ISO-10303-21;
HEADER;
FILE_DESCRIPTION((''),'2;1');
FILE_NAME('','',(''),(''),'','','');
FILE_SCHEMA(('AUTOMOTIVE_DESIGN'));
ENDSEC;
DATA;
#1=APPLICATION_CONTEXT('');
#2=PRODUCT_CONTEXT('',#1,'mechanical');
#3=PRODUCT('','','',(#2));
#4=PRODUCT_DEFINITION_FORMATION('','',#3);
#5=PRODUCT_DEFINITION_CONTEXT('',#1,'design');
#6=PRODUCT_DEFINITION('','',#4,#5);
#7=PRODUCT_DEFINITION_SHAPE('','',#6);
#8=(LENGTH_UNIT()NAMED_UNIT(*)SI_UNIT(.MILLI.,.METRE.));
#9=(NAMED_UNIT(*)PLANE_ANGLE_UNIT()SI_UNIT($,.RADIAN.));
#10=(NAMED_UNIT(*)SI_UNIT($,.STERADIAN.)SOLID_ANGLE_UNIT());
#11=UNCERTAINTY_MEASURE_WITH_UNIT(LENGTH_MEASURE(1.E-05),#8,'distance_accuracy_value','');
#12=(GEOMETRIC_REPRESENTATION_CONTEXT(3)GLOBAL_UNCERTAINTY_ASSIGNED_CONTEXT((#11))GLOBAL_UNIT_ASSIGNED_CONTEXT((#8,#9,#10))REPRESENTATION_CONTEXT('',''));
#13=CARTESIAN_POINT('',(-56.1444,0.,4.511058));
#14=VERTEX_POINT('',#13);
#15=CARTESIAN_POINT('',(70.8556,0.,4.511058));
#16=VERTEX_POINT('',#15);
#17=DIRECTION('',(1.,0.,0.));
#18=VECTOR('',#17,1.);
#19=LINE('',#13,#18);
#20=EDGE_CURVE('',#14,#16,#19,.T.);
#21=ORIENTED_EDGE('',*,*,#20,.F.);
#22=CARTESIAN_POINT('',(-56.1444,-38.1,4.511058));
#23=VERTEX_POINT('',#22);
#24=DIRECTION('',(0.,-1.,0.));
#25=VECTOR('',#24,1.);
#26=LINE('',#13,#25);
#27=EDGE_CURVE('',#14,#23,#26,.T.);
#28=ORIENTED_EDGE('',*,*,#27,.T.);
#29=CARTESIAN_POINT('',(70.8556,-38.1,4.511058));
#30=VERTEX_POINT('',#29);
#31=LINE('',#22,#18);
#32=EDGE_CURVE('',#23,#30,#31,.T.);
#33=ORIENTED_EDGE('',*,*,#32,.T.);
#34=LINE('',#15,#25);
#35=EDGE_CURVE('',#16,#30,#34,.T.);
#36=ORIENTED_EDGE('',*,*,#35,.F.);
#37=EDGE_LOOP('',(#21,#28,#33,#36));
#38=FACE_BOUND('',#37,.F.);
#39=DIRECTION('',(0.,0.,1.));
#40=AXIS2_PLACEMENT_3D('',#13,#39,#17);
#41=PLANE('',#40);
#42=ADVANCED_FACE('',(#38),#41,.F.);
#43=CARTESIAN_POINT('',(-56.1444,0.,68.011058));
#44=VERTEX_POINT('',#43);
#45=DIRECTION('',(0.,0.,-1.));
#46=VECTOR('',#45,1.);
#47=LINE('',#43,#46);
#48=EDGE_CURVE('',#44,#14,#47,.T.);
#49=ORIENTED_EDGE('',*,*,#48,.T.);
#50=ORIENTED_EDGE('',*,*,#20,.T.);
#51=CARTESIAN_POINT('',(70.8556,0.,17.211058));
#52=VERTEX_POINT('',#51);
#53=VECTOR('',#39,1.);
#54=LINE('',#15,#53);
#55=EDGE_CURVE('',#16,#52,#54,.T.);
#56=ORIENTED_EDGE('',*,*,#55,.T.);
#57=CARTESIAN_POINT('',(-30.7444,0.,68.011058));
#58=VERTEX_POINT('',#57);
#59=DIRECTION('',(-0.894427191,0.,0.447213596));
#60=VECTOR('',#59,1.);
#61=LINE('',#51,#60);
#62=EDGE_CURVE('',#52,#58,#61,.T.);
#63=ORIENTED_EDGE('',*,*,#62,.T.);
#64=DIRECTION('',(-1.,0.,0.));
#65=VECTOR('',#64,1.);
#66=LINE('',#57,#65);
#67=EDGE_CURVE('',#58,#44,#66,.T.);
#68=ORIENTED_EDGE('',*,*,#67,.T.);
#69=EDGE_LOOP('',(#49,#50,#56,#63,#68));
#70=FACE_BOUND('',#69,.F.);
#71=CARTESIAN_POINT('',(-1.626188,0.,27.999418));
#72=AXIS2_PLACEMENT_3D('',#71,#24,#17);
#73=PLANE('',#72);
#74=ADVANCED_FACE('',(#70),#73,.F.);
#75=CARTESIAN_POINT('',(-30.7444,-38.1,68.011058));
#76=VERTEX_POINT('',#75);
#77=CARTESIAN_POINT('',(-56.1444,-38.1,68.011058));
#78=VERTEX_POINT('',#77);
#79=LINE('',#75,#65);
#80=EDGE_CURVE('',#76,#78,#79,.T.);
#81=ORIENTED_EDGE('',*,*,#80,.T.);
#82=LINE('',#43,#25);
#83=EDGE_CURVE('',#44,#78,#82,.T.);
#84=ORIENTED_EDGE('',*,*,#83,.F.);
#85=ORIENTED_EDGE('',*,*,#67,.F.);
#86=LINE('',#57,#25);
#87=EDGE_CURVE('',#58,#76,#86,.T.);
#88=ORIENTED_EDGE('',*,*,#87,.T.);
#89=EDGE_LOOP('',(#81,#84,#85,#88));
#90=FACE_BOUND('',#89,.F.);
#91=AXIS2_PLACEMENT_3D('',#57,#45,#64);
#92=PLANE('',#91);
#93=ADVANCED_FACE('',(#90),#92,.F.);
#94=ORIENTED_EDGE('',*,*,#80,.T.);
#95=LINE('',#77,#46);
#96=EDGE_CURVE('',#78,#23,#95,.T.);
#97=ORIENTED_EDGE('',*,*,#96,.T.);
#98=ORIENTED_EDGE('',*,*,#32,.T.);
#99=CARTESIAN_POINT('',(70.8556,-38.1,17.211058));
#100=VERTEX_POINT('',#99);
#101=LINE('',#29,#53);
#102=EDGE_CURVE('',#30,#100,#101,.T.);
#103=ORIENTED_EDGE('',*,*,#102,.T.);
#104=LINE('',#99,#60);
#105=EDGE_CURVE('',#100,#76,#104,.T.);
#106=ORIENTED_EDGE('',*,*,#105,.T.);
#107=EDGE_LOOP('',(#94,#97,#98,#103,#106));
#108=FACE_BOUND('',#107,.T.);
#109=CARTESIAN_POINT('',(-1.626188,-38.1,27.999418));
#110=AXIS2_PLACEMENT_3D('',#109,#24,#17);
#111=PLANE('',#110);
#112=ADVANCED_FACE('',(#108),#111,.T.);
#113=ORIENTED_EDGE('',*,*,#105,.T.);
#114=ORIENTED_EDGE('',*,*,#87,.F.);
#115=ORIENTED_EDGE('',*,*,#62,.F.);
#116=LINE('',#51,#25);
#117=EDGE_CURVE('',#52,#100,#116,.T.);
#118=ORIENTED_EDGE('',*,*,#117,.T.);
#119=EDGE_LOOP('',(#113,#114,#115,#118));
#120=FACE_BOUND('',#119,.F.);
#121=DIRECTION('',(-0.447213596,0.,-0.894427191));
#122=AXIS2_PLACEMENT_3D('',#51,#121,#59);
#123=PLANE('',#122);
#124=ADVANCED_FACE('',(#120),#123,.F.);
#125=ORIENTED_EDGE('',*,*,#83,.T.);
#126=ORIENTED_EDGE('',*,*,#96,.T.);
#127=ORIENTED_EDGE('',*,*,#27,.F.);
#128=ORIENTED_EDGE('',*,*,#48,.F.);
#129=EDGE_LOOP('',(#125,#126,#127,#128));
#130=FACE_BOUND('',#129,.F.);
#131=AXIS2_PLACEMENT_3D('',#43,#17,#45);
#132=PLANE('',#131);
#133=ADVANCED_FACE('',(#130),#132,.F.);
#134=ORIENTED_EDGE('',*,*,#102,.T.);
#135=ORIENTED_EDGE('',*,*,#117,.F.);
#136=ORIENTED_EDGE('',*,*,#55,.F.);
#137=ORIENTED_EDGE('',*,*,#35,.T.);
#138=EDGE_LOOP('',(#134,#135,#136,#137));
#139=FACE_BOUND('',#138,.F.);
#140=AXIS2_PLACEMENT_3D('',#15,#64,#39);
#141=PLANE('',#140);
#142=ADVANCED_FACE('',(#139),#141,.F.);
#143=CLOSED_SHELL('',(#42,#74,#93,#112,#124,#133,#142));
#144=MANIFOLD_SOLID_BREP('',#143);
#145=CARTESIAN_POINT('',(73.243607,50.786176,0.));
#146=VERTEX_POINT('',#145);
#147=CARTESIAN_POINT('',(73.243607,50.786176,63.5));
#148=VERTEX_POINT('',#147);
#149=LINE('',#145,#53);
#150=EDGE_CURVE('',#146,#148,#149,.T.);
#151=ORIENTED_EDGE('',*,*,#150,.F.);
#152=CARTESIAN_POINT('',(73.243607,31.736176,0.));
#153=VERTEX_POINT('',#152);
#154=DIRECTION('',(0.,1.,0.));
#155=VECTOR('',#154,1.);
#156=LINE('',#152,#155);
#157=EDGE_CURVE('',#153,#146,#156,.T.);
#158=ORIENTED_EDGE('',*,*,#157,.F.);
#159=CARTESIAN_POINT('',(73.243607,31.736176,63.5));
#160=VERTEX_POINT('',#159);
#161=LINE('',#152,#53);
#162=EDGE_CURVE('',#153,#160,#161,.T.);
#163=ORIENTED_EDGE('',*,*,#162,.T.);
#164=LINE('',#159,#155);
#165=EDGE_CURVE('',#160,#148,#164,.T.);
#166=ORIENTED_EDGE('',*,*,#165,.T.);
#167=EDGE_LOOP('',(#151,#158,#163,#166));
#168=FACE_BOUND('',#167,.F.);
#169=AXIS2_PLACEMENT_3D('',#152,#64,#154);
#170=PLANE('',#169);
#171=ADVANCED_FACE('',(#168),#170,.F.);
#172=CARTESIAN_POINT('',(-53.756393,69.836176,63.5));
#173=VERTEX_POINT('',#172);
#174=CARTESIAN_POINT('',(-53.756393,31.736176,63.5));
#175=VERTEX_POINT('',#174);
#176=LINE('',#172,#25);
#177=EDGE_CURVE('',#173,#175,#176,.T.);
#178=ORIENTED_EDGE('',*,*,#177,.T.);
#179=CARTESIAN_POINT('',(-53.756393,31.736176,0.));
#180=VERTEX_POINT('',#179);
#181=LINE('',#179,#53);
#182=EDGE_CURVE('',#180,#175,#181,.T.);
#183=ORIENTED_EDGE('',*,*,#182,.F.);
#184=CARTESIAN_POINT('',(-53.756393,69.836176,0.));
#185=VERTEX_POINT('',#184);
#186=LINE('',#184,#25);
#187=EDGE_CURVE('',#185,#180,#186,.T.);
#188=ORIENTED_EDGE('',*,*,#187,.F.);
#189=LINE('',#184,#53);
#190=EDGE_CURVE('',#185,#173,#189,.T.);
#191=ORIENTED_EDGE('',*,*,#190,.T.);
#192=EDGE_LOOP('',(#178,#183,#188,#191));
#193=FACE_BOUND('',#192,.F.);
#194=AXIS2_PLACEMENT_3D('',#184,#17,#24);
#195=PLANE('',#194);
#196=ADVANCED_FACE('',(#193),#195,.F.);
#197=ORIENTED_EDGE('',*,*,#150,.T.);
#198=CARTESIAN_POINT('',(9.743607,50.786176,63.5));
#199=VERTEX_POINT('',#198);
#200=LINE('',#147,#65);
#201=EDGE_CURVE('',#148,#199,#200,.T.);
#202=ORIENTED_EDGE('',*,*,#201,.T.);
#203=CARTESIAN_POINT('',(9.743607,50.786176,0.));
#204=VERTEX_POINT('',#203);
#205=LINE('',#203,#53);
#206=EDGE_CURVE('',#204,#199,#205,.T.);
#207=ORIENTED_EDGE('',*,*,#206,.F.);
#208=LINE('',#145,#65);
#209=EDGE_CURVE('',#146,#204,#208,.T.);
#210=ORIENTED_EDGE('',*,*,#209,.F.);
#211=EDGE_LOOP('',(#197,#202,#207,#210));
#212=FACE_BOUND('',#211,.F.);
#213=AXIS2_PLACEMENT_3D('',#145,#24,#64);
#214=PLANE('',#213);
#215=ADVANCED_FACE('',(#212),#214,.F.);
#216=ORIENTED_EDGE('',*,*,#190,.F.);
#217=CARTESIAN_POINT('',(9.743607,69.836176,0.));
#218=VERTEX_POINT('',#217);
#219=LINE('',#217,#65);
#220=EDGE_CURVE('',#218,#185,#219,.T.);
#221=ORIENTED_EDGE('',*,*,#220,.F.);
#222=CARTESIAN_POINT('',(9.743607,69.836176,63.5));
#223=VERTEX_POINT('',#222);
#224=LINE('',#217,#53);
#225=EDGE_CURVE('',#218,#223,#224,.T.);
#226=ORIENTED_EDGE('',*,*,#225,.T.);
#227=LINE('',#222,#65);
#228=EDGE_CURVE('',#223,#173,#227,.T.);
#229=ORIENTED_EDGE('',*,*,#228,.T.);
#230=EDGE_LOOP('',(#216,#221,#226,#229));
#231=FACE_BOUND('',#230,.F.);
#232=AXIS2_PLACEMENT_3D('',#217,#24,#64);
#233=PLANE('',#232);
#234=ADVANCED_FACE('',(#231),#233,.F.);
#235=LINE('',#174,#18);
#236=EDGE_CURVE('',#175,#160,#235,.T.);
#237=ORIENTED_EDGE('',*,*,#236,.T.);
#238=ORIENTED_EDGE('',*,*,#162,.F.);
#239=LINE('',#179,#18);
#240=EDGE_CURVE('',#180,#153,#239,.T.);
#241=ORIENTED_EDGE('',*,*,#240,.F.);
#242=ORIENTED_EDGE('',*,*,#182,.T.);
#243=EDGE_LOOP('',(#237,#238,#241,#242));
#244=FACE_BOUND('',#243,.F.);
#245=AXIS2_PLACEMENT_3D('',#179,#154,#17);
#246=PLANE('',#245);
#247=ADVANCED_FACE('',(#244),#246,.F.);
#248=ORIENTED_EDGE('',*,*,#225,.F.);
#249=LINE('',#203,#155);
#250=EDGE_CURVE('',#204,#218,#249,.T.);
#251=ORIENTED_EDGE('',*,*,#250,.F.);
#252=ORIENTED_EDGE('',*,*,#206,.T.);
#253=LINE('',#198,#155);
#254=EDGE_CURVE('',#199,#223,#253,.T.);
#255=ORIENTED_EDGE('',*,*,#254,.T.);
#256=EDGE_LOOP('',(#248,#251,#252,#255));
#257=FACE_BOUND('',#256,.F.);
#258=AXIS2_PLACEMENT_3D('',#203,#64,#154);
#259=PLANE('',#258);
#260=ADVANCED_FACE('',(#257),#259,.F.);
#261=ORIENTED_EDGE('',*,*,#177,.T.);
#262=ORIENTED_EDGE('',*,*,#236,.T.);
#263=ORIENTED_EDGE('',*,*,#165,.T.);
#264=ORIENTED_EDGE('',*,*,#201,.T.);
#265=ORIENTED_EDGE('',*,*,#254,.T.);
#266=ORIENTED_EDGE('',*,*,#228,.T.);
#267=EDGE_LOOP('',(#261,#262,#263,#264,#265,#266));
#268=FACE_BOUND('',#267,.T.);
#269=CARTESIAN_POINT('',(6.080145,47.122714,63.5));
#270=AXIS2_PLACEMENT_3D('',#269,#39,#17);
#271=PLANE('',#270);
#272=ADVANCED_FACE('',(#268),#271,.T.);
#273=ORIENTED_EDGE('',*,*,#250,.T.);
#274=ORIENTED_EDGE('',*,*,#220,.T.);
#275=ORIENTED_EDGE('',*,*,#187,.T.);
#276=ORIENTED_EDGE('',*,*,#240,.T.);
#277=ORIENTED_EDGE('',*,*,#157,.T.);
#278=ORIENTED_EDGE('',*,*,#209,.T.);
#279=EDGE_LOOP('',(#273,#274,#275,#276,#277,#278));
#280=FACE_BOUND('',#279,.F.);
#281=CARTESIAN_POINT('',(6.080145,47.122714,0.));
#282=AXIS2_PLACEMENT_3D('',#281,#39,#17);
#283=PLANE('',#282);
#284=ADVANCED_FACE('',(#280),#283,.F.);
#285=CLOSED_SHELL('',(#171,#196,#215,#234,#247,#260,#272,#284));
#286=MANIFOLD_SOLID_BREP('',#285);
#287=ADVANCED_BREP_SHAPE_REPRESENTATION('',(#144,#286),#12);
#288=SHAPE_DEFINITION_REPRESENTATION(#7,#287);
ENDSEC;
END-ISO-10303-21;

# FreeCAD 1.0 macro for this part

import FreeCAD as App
import Part
import Sketcher
Q = App.Units.Quantity

doc = App.newDocument("Part")
params = doc.addObject("Spreadsheet::Sheet", "Params")
for row, (alias, value) in enumerate([
    ("sketch1_width", "1 in"),
    ("sketch1_width2", "5 in"),
    ("sketch1_height", "2.5 in"),
    ("sketch1_height2", "0.5 in"),
    ("pad1_length", "1.5 in"),
    ("sketch2_width", "5 in"),
    ("sketch2_height", "1.5 in"),
    ("pad2_length", "2.5 in"),
], start=1):
    params.set(f"A{row}", alias)
    params.set(f"B{row}", "=" + value)
    params.setAlias(f"B{row}", alias)

body = doc.addObject("PartDesign::Body", "Body")

# Sketch on XZ plane
sketch1 = body.newObject("Sketcher::SketchObject", "Sketch")
sketch1.AttachmentSupport = (doc.getObject("XZ_Plane"), [""])
sketch1.MapMode = "FlatFace"
sketch1.addGeometry([
    Part.LineSegment(App.Vector(-31, 68, 0), App.Vector(-56, 68, 0)),  # 0
    Part.LineSegment(App.Vector(-56, 68, 0), App.Vector(-56, 5, 0)),  # 1
    Part.LineSegment(App.Vector(-56, 5, 0), App.Vector(71, 5, 0)),  # 2
    Part.LineSegment(App.Vector(71, 5, 0), App.Vector(71, 17, 0)),  # 3
    Part.LineSegment(App.Vector(71, 17, 0), App.Vector(-31, 68, 0)),  # 4
], False)
sketch1.addConstraint([
    Sketcher.Constraint("Coincident", 0, 2, 1, 1),
    Sketcher.Constraint("Coincident", 1, 2, 2, 1),
    Sketcher.Constraint("Coincident", 2, 2, 3, 1),
    Sketcher.Constraint("Coincident", 3, 2, 4, 1),
    Sketcher.Constraint("Coincident", 4, 2, 0, 1),
    Sketcher.Constraint("Horizontal", 0),
    Sketcher.Constraint("Vertical", 1),
    Sketcher.Constraint("Horizontal", 2),
    Sketcher.Constraint("Vertical", 3),
    Sketcher.Constraint("DistanceX", 0, 2, 0, 1, Q("1 in")),
    Sketcher.Constraint("DistanceX", 2, 1, 2, 2, Q("5 in")),
    Sketcher.Constraint("DistanceY", 1, 2, 1, 1, Q("2.5 in")),
    Sketcher.Constraint("DistanceY", 3, 1, 3, 2, Q("0.5 in")),
    Sketcher.Constraint("DistanceX", 0, 2, -1, 1, 56.1444),
    Sketcher.Constraint("DistanceY", -1, 1, 0, 2, 68.011058),
])
sketch1.setExpression("Constraints[9]", "Params.sketch1_width")
sketch1.setExpression("Constraints[10]", "Params.sketch1_width2")
sketch1.setExpression("Constraints[11]", "Params.sketch1_height")
sketch1.setExpression("Constraints[12]", "Params.sketch1_height2")
pad1 = body.newObject("PartDesign::Pad", "Pad")
pad1.Profile = sketch1
pad1.setExpression("Length", "Params.pad1_length")
body2 = doc.addObject("PartDesign::Body", "Body001")

# Sketch on XY plane
sketch2 = body2.newObject("Sketcher::SketchObject", "Sketch001")
sketch2.AttachmentSupport = (doc.getObject("XY_Plane001"), [""])
sketch2.MapMode = "FlatFace"
sketch2.addGeometry([
    Part.LineSegment(App.Vector(10, 70, 0), App.Vector(-54, 70, 0)),  # 0
    Part.LineSegment(App.Vector(-54, 70, 0), App.Vector(-54, 32, 0)),  # 1
    Part.LineSegment(App.Vector(-54, 32, 0), App.Vector(73, 32, 0)),  # 2
    Part.LineSegment(App.Vector(73, 32, 0), App.Vector(73, 51, 0)),  # 3
    Part.LineSegment(App.Vector(73, 51, 0), App.Vector(10, 51, 0)),  # 4
    Part.LineSegment(App.Vector(10, 51, 0), App.Vector(10, 70, 0)),  # 5
], False)
sketch2.addConstraint([
    Sketcher.Constraint("Coincident", 0, 2, 1, 1),
    Sketcher.Constraint("Coincident", 1, 2, 2, 1),
    Sketcher.Constraint("Coincident", 2, 2, 3, 1),
    Sketcher.Constraint("Coincident", 3, 2, 4, 1),
    Sketcher.Constraint("Coincident", 4, 2, 5, 1),
    Sketcher.Constraint("Coincident", 5, 2, 0, 1),
    Sketcher.Constraint("Horizontal", 0),
    Sketcher.Constraint("Vertical", 1),
    Sketcher.Constraint("Horizontal", 2),
    Sketcher.Constraint("Vertical", 3),
    Sketcher.Constraint("Horizontal", 4),
    Sketcher.Constraint("Vertical", 5),
    Sketcher.Constraint("Equal", 0, 4),
    Sketcher.Constraint("Equal", 3, 5),
    Sketcher.Constraint("DistanceX", 2, 1, 2, 2, Q("5 in")),
    Sketcher.Constraint("DistanceY", 1, 2, 1, 1, Q("1.5 in")),
    Sketcher.Constraint("DistanceX", 0, 2, -1, 1, 53.756393),
    Sketcher.Constraint("DistanceY", -1, 1, 0, 2, 69.836176),
])
sketch2.setExpression("Constraints[14]", "Params.sketch2_width")
sketch2.setExpression("Constraints[15]", "Params.sketch2_height")
pad2 = body2.newObject("PartDesign::Pad", "Pad001")
pad2.Profile = sketch2
pad2.setExpression("Length", "Params.pad2_length")

doc.recompute()
